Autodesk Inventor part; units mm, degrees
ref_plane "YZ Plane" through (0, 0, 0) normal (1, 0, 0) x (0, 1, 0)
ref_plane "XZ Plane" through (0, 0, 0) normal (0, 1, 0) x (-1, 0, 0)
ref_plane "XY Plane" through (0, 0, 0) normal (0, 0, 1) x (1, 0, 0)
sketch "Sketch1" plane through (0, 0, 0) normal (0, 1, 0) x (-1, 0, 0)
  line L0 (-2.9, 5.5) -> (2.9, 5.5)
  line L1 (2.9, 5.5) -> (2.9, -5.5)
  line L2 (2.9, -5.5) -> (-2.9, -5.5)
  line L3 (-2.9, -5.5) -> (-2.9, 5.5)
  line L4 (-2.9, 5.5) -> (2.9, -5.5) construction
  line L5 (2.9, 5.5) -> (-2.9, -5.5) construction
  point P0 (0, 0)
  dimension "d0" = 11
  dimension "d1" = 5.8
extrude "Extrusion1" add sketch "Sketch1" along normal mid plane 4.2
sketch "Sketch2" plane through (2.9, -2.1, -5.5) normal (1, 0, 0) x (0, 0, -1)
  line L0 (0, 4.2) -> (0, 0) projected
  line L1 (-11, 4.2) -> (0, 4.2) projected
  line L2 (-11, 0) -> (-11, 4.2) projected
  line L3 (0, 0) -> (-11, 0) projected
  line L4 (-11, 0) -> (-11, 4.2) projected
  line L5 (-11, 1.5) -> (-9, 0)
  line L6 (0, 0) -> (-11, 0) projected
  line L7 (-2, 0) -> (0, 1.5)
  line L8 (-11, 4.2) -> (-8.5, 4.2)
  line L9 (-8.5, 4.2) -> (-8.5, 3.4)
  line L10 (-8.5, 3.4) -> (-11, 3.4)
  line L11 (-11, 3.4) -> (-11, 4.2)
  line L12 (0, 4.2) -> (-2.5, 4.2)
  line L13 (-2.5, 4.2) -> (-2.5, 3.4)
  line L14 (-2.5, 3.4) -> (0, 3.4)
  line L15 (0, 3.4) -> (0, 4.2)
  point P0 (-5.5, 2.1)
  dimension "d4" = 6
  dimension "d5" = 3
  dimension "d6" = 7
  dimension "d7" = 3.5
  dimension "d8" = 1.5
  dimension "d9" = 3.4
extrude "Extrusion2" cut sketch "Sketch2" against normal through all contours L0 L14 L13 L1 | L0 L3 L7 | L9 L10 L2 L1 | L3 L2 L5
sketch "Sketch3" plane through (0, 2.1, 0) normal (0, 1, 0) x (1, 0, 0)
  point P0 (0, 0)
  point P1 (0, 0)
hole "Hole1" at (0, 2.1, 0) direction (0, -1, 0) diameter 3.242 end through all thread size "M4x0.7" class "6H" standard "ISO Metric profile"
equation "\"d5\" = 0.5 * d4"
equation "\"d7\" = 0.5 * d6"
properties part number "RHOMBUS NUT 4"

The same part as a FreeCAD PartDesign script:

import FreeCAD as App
import Part
import Sketcher
Q = App.Units.Quantity

doc = App.newDocument("Part")
body = doc.addObject("PartDesign::Body", "Body")

# Sketch on XZ plane
sketch1 = doc.addObject("Sketcher::SketchObject", "Sketch")
body.addObject(sketch1)
sketch1.AttachmentSupport = (doc.XZ_Plane, [""])
sketch1.MapMode = "FlatFace"
sketch1.addGeometry(Part.LineSegment(App.Vector(-2.9, 5.5, 0), App.Vector(2.9, 5.5, 0)), False)
sketch1.addGeometry(Part.LineSegment(App.Vector(2.9, 5.5, 0), App.Vector(2.9, -5.5, 0)), False)
sketch1.addGeometry(Part.LineSegment(App.Vector(2.9, -5.5, 0), App.Vector(-2.9, -5.5, 0)), False)
sketch1.addGeometry(Part.LineSegment(App.Vector(-2.9, -5.5, 0), App.Vector(-2.9, 5.5, 0)), False)
sketch1.addConstraint(Sketcher.Constraint("Coincident", 0, 2, 1, 1))
sketch1.addConstraint(Sketcher.Constraint("Coincident", 1, 2, 2, 1))
sketch1.addConstraint(Sketcher.Constraint("Coincident", 2, 2, 3, 1))
sketch1.addConstraint(Sketcher.Constraint("Coincident", 3, 2, 0, 1))
sketch1.addConstraint(Sketcher.Constraint("Horizontal", 0))
sketch1.addConstraint(Sketcher.Constraint("Vertical", 1))
sketch1.addConstraint(Sketcher.Constraint("Horizontal", 2))
sketch1.addConstraint(Sketcher.Constraint("Vertical", 3))
sketch1.addConstraint(Sketcher.Constraint("Symmetric", 0, 2, 2, 2, -1, 1))
sketch1.addConstraint(Sketcher.Constraint("DistanceY", 1, 2, 1, 1, Q("11 mm")))
sketch1.addConstraint(Sketcher.Constraint("DistanceX", 0, 1, 0, 2, Q("5.8 mm")))
pad1 = doc.addObject("PartDesign::Pad", "Pad")
body.addObject(pad1)
pad1.Profile = sketch1
pad1.Length = 4.2
pad1.Midplane = True

# Sketch on YZ plane
sketch2 = doc.addObject("Sketcher::SketchObject", "Sketch001")
body.addObject(sketch2)
sketch2.AttachmentSupport = (doc.YZ_Plane, [""])
sketch2.MapMode = "FlatFace"
sketch2.AttachmentOffset = App.Placement(App.Vector(0, 0, 2.9), App.Rotation())
sketch2.addGeometry(Part.LineSegment(App.Vector(1.3, -5.5, 0), App.Vector(2.1, -5.5, 0)), False)
sketch2.addGeometry(Part.LineSegment(App.Vector(2.1, -5.5, 0), App.Vector(2.1, -3, 0)), False)
sketch2.addGeometry(Part.LineSegment(App.Vector(2.1, -3, 0), App.Vector(1.3, -3, 0)), False)
sketch2.addGeometry(Part.LineSegment(App.Vector(1.3, -3, 0), App.Vector(1.3, -5.5, 0)), False)
sketch2.addGeometry(Part.LineSegment(App.Vector(-2.1, -5.5, 0), App.Vector(-0.6, -5.5, 0)), False)
sketch2.addGeometry(Part.LineSegment(App.Vector(-0.6, -5.5, 0), App.Vector(-2.1, -3.5, 0)), False)
sketch2.addGeometry(Part.LineSegment(App.Vector(-2.1, -3.5, 0), App.Vector(-2.1, -5.5, 0)), False)
sketch2.addGeometry(Part.LineSegment(App.Vector(1.3, 3, 0), App.Vector(2.1, 3, 0)), False)
sketch2.addGeometry(Part.LineSegment(App.Vector(2.1, 3, 0), App.Vector(2.1, 5.5, 0)), False)
sketch2.addGeometry(Part.LineSegment(App.Vector(2.1, 5.5, 0), App.Vector(1.3, 5.5, 0)), False)
sketch2.addGeometry(Part.LineSegment(App.Vector(1.3, 5.5, 0), App.Vector(1.3, 3, 0)), False)
sketch2.addGeometry(Part.LineSegment(App.Vector(-2.1, 5.5, 0), App.Vector(-2.1, 3.5, 0)), False)
sketch2.addGeometry(Part.LineSegment(App.Vector(-2.1, 3.5, 0), App.Vector(-0.6, 5.5, 0)), False)
sketch2.addGeometry(Part.LineSegment(App.Vector(-0.6, 5.5, 0), App.Vector(-2.1, 5.5, 0)), False)
sketch2.addConstraint(Sketcher.Constraint("Coincident", 0, 2, 1, 1))
sketch2.addConstraint(Sketcher.Constraint("Coincident", 1, 2, 2, 1))
sketch2.addConstraint(Sketcher.Constraint("Coincident", 2, 2, 3, 1))
sketch2.addConstraint(Sketcher.Constraint("Coincident", 3, 2, 0, 1))
sketch2.addConstraint(Sketcher.Constraint("Coincident", 4, 2, 5, 1))
sketch2.addConstraint(Sketcher.Constraint("Coincident", 5, 2, 6, 1))
sketch2.addConstraint(Sketcher.Constraint("Coincident", 6, 2, 4, 1))
sketch2.addConstraint(Sketcher.Constraint("Coincident", 7, 2, 8, 1))
sketch2.addConstraint(Sketcher.Constraint("Coincident", 8, 2, 9, 1))
sketch2.addConstraint(Sketcher.Constraint("Coincident", 9, 2, 10, 1))
sketch2.addConstraint(Sketcher.Constraint("Coincident", 10, 2, 7, 1))
sketch2.addConstraint(Sketcher.Constraint("Coincident", 11, 2, 12, 1))
sketch2.addConstraint(Sketcher.Constraint("Coincident", 12, 2, 13, 1))
sketch2.addConstraint(Sketcher.Constraint("Coincident", 13, 2, 11, 1))
sketch2.addConstraint(Sketcher.Constraint("Horizontal", 0))
sketch2.addConstraint(Sketcher.Constraint("Vertical", 1))
sketch2.addConstraint(Sketcher.Constraint("Horizontal", 2))
sketch2.addConstraint(Sketcher.Constraint("Vertical", 3))
sketch2.addConstraint(Sketcher.Constraint("Horizontal", 4))
sketch2.addConstraint(Sketcher.Constraint("Vertical", 6))
sketch2.addConstraint(Sketcher.Constraint("Horizontal", 7))
sketch2.addConstraint(Sketcher.Constraint("Vertical", 8))
sketch2.addConstraint(Sketcher.Constraint("Horizontal", 9))
sketch2.addConstraint(Sketcher.Constraint("Vertical", 10))
sketch2.addConstraint(Sketcher.Constraint("Vertical", 11))
sketch2.addConstraint(Sketcher.Constraint("Horizontal", 13))
sketch2.addConstraint(Sketcher.Constraint("Symmetric", 6, 2, 8, 2, -1, 1))
sketch2.addConstraint(Sketcher.Constraint("Symmetric", 0, 2, 13, 2, -1, 1))
sketch2.addConstraint(Sketcher.Constraint("Symmetric", 0, 2, 6, 2, -2))
sketch2.addConstraint(Sketcher.Constraint("Symmetric", 2, 2, 10, 2, -1))
sketch2.addConstraint(Sketcher.Constraint("Vertical", 4, 2, 12, 2))
sketch2.addConstraint(Sketcher.Constraint("Equal", 6, 11))
sketch2.addConstraint(Sketcher.Constraint("DistanceX", 4, 1, 4, 2, Q("1.5 mm")))
sketch2.addConstraint(Sketcher.Constraint("DistanceY", 1, 2, -1, 1, Q("3 mm")))
sketch2.addConstraint(Sketcher.Constraint("DistanceY", 5, 2, 11, 2, Q("7 mm")))
sketch2.addConstraint(Sketcher.Constraint("DistanceX", 5, 2, 2, 2, Q("3.4 mm")))
sketch2.addConstraint(Sketcher.Constraint("DistanceY", 6, 2, 6, 1, Q("2 mm")))
sketch2.addConstraint(Sketcher.Constraint("DistanceX", 0, 1, 0, 2, Q("0.8 mm")))
pocket1 = doc.addObject("PartDesign::Pocket", "Pocket")
body.addObject(pocket1)
pocket1.Profile = sketch2
pocket1.Type = "ThroughAll"

# Sketch on XZ plane
sketch3 = doc.addObject("Sketcher::SketchObject", "Sketch002")
body.addObject(sketch3)
sketch3.AttachmentSupport = (doc.XZ_Plane, [""])
sketch3.MapMode = "FlatFace"
sketch3.AttachmentOffset = App.Placement(App.Vector(0, 0, -2.1), App.Rotation())
sketch3.addGeometry(Part.Circle(App.Vector(0, 0, 0), App.Vector(0, 0, 1), 1.621), False)
sketch3.addConstraint(Sketcher.Constraint("Coincident", 0, 3, -1, 1))
sketch3.addConstraint(Sketcher.Constraint("Diameter", 0, Q("3.242 mm")))
doc.recompute()
hole = doc.addObject("PartDesign::Hole", "Hole")
body.addObject(hole)
hole.Profile = sketch3
hole.ThreadType = "None"
hole.Diameter = 3.242
hole.DepthType = "ThroughAll"
hole.Reversed = True

doc.recompute()
